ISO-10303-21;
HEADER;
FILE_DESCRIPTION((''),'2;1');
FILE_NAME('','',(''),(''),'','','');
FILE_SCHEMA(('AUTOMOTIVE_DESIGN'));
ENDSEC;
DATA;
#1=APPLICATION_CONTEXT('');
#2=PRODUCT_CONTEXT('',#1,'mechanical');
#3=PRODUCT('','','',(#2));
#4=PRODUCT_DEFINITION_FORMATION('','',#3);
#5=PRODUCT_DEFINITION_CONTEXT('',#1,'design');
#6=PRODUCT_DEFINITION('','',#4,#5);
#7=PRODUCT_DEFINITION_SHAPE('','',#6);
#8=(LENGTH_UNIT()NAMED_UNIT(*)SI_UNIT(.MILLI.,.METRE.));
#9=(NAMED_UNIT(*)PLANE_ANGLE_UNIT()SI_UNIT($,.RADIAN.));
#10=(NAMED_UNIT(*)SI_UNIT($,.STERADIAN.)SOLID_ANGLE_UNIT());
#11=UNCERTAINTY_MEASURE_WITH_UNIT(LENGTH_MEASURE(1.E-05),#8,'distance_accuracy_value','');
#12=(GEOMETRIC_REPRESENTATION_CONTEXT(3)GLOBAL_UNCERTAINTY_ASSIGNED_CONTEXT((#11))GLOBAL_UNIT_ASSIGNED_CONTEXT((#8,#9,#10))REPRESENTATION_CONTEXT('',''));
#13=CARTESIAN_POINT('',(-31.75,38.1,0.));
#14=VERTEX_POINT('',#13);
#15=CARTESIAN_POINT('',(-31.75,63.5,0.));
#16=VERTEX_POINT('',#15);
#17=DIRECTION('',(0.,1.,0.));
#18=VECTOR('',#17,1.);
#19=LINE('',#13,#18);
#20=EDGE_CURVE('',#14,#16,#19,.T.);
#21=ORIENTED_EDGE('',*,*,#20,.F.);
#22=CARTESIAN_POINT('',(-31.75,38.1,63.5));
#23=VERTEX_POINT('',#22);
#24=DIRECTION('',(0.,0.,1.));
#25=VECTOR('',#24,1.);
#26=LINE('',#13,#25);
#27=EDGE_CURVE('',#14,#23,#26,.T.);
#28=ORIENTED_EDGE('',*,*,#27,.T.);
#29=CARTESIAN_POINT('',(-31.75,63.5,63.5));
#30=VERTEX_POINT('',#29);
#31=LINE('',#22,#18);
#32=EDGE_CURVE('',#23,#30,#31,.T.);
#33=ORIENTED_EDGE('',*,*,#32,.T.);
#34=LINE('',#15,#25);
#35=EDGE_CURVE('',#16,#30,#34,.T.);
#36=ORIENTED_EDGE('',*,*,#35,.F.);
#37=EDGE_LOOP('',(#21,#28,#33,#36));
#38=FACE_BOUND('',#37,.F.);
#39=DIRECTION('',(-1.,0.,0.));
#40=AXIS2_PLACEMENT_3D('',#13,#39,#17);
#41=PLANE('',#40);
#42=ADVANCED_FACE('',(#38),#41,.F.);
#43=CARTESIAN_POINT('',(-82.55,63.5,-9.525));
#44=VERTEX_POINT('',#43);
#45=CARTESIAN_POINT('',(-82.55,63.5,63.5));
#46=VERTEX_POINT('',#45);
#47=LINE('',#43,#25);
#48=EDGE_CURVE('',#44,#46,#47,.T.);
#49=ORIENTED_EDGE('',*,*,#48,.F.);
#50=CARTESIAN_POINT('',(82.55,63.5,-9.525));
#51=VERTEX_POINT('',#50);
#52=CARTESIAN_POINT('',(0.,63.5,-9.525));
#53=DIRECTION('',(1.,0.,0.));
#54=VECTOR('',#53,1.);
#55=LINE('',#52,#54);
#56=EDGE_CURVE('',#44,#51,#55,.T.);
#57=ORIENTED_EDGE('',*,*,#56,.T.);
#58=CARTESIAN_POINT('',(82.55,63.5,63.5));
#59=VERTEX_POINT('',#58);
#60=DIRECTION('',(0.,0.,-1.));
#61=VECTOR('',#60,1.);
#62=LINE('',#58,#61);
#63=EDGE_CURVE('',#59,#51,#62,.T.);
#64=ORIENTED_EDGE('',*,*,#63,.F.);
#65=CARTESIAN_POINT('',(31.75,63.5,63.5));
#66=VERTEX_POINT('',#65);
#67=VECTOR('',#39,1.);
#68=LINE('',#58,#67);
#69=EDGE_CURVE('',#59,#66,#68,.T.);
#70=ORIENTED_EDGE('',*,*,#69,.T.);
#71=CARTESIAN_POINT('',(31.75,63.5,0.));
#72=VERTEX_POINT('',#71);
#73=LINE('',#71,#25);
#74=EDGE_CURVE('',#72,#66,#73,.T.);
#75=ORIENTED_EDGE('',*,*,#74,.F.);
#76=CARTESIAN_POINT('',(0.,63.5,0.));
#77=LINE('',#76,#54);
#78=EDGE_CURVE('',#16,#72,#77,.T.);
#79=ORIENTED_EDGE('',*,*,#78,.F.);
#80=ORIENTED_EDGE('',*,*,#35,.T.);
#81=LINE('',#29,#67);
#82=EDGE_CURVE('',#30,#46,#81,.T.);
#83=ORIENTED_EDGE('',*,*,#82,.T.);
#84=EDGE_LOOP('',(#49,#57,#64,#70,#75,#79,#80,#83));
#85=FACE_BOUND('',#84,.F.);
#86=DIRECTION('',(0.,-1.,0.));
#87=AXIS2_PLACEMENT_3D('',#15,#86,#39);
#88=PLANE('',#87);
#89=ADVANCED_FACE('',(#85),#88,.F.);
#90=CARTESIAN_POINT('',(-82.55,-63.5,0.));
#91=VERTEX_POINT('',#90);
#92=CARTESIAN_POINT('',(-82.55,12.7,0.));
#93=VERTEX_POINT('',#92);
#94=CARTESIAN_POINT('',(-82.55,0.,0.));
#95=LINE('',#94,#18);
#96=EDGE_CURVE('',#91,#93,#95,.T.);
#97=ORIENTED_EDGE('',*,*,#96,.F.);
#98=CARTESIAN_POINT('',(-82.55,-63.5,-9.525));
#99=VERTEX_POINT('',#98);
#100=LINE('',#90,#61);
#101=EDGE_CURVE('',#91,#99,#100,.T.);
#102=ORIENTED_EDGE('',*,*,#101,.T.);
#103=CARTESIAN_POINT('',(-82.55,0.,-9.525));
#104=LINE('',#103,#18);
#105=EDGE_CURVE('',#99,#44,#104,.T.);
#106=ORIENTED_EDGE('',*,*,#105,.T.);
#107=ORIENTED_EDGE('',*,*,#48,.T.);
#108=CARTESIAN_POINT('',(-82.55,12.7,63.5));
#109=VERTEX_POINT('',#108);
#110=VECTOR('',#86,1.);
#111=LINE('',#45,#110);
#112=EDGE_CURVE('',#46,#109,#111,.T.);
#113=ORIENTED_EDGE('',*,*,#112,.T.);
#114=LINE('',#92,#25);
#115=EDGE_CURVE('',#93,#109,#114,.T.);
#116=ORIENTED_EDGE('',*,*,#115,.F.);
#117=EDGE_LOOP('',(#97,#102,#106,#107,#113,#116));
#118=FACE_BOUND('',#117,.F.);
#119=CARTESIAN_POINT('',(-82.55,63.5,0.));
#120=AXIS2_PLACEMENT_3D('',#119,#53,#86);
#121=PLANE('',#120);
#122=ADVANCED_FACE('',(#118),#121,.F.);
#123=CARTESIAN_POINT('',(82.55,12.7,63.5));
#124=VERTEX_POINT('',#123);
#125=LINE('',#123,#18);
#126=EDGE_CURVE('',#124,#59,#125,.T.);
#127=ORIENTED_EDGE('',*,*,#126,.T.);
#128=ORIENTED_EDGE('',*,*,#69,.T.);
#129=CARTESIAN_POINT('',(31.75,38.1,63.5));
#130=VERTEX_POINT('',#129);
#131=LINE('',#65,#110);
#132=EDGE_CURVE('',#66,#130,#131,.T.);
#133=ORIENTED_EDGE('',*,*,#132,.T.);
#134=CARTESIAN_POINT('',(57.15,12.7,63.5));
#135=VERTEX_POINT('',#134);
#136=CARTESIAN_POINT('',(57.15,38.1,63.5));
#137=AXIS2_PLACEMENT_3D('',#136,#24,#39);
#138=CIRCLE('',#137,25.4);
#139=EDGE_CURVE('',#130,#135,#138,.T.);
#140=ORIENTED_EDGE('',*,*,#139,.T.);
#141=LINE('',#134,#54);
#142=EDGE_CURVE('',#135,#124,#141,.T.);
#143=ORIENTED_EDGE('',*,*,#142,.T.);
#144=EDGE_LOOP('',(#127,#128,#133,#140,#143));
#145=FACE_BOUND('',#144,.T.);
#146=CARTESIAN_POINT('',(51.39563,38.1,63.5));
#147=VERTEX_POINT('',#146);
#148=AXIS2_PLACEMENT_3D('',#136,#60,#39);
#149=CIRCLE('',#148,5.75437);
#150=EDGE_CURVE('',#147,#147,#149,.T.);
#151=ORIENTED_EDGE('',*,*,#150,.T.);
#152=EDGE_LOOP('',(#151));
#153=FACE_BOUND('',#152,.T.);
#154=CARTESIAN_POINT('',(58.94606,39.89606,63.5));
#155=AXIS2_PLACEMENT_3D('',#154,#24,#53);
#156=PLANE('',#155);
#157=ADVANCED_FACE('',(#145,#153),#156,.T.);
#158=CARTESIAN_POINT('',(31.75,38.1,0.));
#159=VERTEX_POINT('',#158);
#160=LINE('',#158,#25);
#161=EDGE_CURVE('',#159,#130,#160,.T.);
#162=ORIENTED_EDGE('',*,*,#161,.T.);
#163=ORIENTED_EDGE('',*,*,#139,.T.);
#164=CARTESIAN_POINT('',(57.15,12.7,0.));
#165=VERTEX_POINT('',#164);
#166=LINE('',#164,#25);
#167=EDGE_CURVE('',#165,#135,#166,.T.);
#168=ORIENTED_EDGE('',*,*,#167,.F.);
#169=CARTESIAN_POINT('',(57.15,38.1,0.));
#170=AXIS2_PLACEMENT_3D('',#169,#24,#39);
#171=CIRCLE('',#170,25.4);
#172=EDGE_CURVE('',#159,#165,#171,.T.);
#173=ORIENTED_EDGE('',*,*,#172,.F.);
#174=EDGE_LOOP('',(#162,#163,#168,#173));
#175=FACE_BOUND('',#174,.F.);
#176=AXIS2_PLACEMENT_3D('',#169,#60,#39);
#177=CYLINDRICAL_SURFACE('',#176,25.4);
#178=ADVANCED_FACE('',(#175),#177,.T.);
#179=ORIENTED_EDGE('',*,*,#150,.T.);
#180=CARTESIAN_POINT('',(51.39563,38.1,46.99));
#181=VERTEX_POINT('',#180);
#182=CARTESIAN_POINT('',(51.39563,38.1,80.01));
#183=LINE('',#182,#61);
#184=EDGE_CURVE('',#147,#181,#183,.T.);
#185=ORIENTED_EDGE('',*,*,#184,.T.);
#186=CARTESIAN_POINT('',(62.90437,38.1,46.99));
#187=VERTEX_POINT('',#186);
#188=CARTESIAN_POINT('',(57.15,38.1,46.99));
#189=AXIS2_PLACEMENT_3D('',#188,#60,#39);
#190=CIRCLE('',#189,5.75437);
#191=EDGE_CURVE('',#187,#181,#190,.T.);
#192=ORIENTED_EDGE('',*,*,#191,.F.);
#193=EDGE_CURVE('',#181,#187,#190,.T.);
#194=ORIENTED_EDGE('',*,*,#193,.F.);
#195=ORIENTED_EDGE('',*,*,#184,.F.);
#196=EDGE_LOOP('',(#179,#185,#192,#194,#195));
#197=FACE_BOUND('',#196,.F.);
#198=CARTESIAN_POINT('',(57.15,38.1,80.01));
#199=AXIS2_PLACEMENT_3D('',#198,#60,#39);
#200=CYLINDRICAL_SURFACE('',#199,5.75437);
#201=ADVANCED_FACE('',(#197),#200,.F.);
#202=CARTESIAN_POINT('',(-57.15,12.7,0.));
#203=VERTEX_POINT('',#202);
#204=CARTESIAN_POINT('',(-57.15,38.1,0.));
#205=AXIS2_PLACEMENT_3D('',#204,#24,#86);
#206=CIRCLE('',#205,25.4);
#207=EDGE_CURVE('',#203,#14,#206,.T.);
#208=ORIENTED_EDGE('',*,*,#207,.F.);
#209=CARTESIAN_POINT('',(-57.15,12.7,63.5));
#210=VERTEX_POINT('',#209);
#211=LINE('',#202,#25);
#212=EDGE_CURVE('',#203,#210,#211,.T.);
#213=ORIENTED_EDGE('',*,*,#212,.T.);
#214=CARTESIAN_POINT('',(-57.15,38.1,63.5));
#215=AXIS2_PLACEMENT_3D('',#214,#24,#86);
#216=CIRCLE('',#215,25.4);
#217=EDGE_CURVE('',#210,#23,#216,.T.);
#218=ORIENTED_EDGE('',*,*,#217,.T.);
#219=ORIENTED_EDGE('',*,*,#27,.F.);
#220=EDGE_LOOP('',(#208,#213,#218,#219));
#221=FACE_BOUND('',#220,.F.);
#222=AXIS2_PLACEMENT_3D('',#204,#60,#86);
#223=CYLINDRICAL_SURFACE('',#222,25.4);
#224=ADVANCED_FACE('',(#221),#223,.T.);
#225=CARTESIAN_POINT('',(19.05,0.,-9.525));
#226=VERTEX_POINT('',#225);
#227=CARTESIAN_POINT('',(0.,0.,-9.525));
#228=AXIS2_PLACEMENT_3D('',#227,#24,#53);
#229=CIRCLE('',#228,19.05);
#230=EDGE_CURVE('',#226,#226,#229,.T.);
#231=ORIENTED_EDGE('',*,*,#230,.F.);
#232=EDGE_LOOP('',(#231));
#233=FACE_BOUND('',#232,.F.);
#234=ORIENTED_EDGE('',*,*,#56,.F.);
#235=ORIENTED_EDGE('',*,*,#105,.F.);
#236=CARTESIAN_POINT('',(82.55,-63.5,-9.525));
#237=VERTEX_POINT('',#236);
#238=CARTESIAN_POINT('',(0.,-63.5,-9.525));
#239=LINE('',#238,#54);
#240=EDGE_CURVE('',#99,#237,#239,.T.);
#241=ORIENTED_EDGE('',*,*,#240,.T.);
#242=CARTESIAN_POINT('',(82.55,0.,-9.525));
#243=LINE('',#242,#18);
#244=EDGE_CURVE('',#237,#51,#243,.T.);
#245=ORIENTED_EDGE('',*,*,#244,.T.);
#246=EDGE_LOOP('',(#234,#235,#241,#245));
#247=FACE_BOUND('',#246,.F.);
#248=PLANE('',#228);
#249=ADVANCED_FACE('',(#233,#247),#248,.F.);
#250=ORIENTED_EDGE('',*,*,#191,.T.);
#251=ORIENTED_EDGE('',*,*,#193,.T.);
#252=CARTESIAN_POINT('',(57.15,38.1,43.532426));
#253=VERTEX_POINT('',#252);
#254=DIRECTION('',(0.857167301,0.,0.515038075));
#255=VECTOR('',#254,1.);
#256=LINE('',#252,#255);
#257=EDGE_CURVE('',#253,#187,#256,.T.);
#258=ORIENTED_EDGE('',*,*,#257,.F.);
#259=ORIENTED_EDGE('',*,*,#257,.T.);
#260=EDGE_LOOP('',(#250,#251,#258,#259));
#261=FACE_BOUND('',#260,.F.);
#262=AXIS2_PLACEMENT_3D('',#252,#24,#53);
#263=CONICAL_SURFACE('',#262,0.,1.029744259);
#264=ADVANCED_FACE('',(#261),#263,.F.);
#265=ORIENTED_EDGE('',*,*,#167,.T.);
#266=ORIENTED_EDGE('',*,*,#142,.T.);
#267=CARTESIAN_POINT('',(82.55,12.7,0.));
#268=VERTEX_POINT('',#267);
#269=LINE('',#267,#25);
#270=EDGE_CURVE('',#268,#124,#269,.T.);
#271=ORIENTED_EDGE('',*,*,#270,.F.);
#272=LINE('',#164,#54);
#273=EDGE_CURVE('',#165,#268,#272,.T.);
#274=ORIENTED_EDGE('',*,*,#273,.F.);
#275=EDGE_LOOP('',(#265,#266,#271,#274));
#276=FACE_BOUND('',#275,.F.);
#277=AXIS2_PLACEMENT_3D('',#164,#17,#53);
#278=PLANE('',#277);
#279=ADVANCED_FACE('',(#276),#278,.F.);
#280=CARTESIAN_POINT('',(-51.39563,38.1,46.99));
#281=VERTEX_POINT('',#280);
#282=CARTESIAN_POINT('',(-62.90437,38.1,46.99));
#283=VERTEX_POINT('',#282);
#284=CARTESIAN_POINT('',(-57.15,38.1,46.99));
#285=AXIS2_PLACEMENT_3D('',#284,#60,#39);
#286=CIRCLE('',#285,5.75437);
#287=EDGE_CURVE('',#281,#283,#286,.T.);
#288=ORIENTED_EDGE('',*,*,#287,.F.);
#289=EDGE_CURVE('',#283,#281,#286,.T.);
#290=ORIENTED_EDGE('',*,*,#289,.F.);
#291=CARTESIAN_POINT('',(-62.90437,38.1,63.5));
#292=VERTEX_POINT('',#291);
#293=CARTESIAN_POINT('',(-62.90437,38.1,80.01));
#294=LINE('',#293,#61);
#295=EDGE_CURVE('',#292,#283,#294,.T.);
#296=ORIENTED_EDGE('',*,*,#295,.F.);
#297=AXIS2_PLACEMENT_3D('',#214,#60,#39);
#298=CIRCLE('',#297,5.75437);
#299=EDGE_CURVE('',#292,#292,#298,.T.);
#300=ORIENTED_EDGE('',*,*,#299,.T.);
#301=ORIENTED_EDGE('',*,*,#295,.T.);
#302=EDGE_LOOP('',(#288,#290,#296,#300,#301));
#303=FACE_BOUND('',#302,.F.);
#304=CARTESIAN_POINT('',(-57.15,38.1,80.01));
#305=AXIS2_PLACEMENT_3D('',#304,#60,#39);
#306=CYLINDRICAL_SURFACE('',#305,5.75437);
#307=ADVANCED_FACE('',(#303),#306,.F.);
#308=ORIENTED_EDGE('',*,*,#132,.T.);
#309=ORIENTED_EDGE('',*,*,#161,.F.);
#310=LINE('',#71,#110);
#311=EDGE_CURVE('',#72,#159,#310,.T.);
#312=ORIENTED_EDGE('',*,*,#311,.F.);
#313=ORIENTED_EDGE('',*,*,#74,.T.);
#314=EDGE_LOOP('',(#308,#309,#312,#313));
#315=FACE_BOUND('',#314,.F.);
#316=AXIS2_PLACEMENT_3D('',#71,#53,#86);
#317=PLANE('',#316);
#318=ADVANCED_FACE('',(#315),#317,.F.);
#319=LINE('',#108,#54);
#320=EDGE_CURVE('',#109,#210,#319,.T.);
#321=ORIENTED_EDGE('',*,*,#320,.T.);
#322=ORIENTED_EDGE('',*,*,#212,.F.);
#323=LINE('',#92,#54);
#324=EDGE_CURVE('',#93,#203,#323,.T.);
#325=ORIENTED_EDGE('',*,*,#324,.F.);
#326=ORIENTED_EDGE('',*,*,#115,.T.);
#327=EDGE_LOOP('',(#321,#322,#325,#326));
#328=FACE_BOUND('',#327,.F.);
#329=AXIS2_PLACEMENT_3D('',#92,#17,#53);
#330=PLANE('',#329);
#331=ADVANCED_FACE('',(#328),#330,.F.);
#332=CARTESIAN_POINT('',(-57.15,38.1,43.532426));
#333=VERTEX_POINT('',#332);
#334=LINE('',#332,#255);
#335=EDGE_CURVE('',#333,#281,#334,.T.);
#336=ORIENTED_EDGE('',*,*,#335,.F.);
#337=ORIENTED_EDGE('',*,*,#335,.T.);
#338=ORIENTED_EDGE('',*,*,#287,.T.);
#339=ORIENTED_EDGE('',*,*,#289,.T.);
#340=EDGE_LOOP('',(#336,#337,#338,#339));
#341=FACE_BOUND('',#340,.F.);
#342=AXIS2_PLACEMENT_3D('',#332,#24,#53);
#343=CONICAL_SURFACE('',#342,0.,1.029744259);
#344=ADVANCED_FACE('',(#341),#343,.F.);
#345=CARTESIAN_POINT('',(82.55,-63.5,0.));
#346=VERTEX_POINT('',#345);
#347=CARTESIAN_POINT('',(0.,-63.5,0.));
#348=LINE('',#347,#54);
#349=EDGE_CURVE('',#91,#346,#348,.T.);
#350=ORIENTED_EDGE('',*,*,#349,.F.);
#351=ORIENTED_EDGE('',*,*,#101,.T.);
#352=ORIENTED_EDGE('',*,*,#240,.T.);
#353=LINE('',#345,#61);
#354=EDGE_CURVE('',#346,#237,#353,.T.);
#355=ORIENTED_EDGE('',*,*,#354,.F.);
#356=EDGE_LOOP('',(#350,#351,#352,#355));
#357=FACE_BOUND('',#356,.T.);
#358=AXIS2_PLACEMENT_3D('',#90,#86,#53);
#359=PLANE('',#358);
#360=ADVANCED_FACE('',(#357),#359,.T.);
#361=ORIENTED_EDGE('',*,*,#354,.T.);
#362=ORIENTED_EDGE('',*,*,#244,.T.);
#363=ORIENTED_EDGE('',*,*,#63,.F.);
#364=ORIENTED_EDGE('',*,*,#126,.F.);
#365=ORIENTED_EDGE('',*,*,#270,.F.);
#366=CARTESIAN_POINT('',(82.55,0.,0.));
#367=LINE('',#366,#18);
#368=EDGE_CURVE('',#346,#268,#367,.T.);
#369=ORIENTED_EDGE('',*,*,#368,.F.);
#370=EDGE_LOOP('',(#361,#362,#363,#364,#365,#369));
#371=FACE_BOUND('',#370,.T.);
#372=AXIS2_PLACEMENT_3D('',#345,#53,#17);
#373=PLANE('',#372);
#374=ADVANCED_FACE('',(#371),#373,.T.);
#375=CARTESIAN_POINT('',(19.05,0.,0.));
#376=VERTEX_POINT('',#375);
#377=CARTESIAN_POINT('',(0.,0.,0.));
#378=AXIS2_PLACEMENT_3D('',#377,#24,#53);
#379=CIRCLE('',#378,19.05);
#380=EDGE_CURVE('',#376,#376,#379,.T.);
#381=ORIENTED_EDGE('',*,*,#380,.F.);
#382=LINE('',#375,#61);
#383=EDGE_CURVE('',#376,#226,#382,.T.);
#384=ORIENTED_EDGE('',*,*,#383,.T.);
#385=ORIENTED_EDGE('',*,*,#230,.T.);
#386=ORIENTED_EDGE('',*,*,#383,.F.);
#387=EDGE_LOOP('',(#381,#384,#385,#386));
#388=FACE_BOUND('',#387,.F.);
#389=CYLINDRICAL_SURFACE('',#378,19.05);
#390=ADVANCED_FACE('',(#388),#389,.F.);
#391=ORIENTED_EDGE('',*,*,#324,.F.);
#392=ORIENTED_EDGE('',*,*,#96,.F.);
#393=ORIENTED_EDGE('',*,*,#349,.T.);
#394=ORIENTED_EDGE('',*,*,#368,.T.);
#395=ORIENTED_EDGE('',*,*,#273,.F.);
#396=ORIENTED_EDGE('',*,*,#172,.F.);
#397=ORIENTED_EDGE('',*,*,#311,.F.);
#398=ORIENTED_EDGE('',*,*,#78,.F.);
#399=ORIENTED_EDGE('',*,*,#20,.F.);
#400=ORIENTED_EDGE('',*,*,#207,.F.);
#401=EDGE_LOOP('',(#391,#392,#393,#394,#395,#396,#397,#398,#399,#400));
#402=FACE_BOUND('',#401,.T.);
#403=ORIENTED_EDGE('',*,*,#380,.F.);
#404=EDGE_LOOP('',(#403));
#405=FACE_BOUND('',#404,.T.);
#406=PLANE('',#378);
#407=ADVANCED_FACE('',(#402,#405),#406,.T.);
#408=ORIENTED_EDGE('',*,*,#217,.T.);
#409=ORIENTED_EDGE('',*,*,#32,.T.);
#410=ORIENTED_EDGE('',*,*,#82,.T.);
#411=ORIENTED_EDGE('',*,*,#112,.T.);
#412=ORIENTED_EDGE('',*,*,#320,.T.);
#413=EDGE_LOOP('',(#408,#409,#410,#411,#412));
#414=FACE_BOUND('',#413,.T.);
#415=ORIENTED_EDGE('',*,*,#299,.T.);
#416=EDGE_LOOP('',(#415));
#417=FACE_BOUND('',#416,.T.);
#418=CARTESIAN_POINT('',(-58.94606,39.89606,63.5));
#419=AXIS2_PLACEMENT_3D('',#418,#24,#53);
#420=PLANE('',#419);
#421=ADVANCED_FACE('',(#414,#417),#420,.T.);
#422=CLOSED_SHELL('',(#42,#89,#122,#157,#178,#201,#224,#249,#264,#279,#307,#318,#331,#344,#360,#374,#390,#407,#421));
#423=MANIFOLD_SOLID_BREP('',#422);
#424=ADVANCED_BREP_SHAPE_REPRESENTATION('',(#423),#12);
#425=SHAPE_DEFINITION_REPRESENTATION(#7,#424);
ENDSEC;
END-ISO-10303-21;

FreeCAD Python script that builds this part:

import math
import FreeCAD as App
import Part
import Sketcher
Q = App.Units.Quantity

doc = App.newDocument("Part")
body = doc.addObject("PartDesign::Body", "Body")

# Sketch on XY plane
sketch1 = body.newObject("Sketcher::SketchObject", "Sketch")
sketch1.AttachmentSupport = (doc.getObject("XY_Plane"), [""])
sketch1.MapMode = "FlatFace"
sketch1.addGeometry([
    Part.LineSegment(App.Vector(-83, 64, 0), App.Vector(-83, -64, 0)),  # 0
    Part.LineSegment(App.Vector(-83, -64, 0), App.Vector(83, -64, 0)),  # 1
    Part.LineSegment(App.Vector(83, -64, 0), App.Vector(83, 64, 0)),  # 2
    Part.LineSegment(App.Vector(83, 64, 0), App.Vector(-83, 64, 0)),  # 3
    Part.Circle(App.Vector(0, 0, 0), App.Vector(0, 0, 1), 19),  # 4
], False)
sketch1.addConstraint([
    Sketcher.Constraint("Coincident", 0, 2, 1, 1),
    Sketcher.Constraint("Coincident", 1, 2, 2, 1),
    Sketcher.Constraint("Coincident", 2, 2, 3, 1),
    Sketcher.Constraint("Coincident", 3, 2, 0, 1),
    Sketcher.Constraint("Vertical", 0),
    Sketcher.Constraint("Horizontal", 1),
    Sketcher.Constraint("Vertical", 2),
    Sketcher.Constraint("Horizontal", 3),
    Sketcher.Constraint("Coincident", 4, 3, -1, 1),
    Sketcher.Constraint("Symmetric", 0, 2, 2, 2, -1, 1),
    Sketcher.Constraint("Diameter", 4, Q("1.5 in")),
    Sketcher.Constraint("DistanceY", 0, 2, 0, 1, Q("5 in")),
    Sketcher.Constraint("DistanceX", 1, 1, 1, 2, Q("6.5 in")),
])
pad1 = body.newObject("PartDesign::Pad", "Pad")
pad1.Profile = sketch1
pad1.Length = Q("0.375 in")
pad1.Reversed = True

# Sketch on XY plane
sketch2 = body.newObject("Sketcher::SketchObject", "Sketch001")
sketch2.AttachmentSupport = (doc.getObject("XY_Plane"), [""])
sketch2.MapMode = "FlatFace"
sketch2.addGeometry([
    Part.LineSegment(App.Vector(-32, 64, 0), App.Vector(-83, 64, 0)),  # 0
    Part.LineSegment(App.Vector(-83, 64, 0), App.Vector(-83, 13, 0)),  # 1
    Part.LineSegment(App.Vector(-83, 13, 0), App.Vector(-57, 13, 0)),  # 2
    Part.ArcOfCircle(Part.Circle(App.Vector(-57, 38, 0), App.Vector(0, 0, 1), 25), math.radians(-90), math.radians(0)),  # 3
    Part.LineSegment(App.Vector(-32, 38, 0), App.Vector(-32, 64, 0)),  # 4
    Part.LineSegment(App.Vector(83, 64, 0), App.Vector(32, 64, 0)),  # 5
    Part.LineSegment(App.Vector(32, 64, 0), App.Vector(32, 38, 0)),  # 6
    Part.ArcOfCircle(Part.Circle(App.Vector(57, 38, 0), App.Vector(0, 0, 1), 25), math.radians(180), math.radians(270)),  # 7
    Part.LineSegment(App.Vector(57, 13, 0), App.Vector(83, 13, 0)),  # 8
    Part.LineSegment(App.Vector(83, 13, 0), App.Vector(83, 64, 0)),  # 9
], False)
sketch2.addConstraint([
    Sketcher.Constraint("Coincident", 0, 2, 1, 1),
    Sketcher.Constraint("Coincident", 1, 2, 2, 1),
    Sketcher.Constraint("Tangent", 2, 2, 3, 1),
    Sketcher.Constraint("Tangent", 3, 2, 4, 1),
    Sketcher.Constraint("Coincident", 4, 2, 0, 1),
    Sketcher.Constraint("Coincident", 5, 2, 6, 1),
    Sketcher.Constraint("Tangent", 6, 2, 7, 1),
    Sketcher.Constraint("Tangent", 7, 2, 8, 1),
    Sketcher.Constraint("Coincident", 8, 2, 9, 1),
    Sketcher.Constraint("Coincident", 9, 2, 5, 1),
    Sketcher.Constraint("Horizontal", 0),
    Sketcher.Constraint("Vertical", 1),
    Sketcher.Constraint("Horizontal", 2),
    Sketcher.Constraint("Vertical", 4),
    Sketcher.Constraint("Horizontal", 5),
    Sketcher.Constraint("Vertical", 6),
    Sketcher.Constraint("Horizontal", 8),
    Sketcher.Constraint("Vertical", 9),
    Sketcher.Constraint("Equal", 3, 7),
    Sketcher.Constraint("Symmetric", 3, 3, 7, 3, -2),
    Sketcher.Constraint("Symmetric", 0, 2, 9, 2, -2),
    Sketcher.Constraint("Equal", 5, 1),
    Sketcher.Constraint("Radius", 3, Q("1 in")),
    Sketcher.Constraint("DistanceX", 0, 2, 0, 1, Q("2 in")),
    Sketcher.Constraint("DistanceY", -1, 1, 3, 3, Q("1.5 in")),
    Sketcher.Constraint("DistanceX", 3, 3, 7, 3, Q("4.5 in")),
])
pad2 = body.newObject("PartDesign::Pad", "Pad001")
pad2.Profile = sketch2
pad2.Length = Q("2.5 in")

# Sketch on XY plane
sketch3 = body.newObject("Sketcher::SketchObject", "Sketch002")
sketch3.AttachmentSupport = (doc.getObject("XY_Plane"), [""])
sketch3.MapMode = "FlatFace"
sketch3.AttachmentOffset = App.Placement(App.Vector(0, 0, 2.5 * 25.4), App.Rotation())
sketch3.addGeometry([
    Part.Circle(App.Vector(57, 38, 0), App.Vector(0, 0, 1), 6),
    Part.Circle(App.Vector(-57, 38, 0), App.Vector(0, 0, 1), 6),
], False)
sketch3.addConstraint([
    Sketcher.Constraint("Equal", 0, 1),
    Sketcher.Constraint("Symmetric", 0, 3, 1, 3, -2),
    Sketcher.Constraint("Diameter", 0, Q("0.4531 in")),
    Sketcher.Constraint("DistanceY", -1, 1, 0, 3, Q("1.5 in")),
    Sketcher.Constraint("DistanceX", 1, 3, 0, 3, Q("4.5 in")),
])
doc.recompute()
hole = body.newObject("PartDesign::Hole", "Hole")
hole.Profile = sketch3
hole.ThreadType = "None"
hole.Diameter = Q("0.4531 in")
hole.DepthType = "Dimension"
hole.Depth = Q("0.65 in")
hole.DrillPoint = "Angled"
hole.DrillPointAngle = 118

doc.recompute()
